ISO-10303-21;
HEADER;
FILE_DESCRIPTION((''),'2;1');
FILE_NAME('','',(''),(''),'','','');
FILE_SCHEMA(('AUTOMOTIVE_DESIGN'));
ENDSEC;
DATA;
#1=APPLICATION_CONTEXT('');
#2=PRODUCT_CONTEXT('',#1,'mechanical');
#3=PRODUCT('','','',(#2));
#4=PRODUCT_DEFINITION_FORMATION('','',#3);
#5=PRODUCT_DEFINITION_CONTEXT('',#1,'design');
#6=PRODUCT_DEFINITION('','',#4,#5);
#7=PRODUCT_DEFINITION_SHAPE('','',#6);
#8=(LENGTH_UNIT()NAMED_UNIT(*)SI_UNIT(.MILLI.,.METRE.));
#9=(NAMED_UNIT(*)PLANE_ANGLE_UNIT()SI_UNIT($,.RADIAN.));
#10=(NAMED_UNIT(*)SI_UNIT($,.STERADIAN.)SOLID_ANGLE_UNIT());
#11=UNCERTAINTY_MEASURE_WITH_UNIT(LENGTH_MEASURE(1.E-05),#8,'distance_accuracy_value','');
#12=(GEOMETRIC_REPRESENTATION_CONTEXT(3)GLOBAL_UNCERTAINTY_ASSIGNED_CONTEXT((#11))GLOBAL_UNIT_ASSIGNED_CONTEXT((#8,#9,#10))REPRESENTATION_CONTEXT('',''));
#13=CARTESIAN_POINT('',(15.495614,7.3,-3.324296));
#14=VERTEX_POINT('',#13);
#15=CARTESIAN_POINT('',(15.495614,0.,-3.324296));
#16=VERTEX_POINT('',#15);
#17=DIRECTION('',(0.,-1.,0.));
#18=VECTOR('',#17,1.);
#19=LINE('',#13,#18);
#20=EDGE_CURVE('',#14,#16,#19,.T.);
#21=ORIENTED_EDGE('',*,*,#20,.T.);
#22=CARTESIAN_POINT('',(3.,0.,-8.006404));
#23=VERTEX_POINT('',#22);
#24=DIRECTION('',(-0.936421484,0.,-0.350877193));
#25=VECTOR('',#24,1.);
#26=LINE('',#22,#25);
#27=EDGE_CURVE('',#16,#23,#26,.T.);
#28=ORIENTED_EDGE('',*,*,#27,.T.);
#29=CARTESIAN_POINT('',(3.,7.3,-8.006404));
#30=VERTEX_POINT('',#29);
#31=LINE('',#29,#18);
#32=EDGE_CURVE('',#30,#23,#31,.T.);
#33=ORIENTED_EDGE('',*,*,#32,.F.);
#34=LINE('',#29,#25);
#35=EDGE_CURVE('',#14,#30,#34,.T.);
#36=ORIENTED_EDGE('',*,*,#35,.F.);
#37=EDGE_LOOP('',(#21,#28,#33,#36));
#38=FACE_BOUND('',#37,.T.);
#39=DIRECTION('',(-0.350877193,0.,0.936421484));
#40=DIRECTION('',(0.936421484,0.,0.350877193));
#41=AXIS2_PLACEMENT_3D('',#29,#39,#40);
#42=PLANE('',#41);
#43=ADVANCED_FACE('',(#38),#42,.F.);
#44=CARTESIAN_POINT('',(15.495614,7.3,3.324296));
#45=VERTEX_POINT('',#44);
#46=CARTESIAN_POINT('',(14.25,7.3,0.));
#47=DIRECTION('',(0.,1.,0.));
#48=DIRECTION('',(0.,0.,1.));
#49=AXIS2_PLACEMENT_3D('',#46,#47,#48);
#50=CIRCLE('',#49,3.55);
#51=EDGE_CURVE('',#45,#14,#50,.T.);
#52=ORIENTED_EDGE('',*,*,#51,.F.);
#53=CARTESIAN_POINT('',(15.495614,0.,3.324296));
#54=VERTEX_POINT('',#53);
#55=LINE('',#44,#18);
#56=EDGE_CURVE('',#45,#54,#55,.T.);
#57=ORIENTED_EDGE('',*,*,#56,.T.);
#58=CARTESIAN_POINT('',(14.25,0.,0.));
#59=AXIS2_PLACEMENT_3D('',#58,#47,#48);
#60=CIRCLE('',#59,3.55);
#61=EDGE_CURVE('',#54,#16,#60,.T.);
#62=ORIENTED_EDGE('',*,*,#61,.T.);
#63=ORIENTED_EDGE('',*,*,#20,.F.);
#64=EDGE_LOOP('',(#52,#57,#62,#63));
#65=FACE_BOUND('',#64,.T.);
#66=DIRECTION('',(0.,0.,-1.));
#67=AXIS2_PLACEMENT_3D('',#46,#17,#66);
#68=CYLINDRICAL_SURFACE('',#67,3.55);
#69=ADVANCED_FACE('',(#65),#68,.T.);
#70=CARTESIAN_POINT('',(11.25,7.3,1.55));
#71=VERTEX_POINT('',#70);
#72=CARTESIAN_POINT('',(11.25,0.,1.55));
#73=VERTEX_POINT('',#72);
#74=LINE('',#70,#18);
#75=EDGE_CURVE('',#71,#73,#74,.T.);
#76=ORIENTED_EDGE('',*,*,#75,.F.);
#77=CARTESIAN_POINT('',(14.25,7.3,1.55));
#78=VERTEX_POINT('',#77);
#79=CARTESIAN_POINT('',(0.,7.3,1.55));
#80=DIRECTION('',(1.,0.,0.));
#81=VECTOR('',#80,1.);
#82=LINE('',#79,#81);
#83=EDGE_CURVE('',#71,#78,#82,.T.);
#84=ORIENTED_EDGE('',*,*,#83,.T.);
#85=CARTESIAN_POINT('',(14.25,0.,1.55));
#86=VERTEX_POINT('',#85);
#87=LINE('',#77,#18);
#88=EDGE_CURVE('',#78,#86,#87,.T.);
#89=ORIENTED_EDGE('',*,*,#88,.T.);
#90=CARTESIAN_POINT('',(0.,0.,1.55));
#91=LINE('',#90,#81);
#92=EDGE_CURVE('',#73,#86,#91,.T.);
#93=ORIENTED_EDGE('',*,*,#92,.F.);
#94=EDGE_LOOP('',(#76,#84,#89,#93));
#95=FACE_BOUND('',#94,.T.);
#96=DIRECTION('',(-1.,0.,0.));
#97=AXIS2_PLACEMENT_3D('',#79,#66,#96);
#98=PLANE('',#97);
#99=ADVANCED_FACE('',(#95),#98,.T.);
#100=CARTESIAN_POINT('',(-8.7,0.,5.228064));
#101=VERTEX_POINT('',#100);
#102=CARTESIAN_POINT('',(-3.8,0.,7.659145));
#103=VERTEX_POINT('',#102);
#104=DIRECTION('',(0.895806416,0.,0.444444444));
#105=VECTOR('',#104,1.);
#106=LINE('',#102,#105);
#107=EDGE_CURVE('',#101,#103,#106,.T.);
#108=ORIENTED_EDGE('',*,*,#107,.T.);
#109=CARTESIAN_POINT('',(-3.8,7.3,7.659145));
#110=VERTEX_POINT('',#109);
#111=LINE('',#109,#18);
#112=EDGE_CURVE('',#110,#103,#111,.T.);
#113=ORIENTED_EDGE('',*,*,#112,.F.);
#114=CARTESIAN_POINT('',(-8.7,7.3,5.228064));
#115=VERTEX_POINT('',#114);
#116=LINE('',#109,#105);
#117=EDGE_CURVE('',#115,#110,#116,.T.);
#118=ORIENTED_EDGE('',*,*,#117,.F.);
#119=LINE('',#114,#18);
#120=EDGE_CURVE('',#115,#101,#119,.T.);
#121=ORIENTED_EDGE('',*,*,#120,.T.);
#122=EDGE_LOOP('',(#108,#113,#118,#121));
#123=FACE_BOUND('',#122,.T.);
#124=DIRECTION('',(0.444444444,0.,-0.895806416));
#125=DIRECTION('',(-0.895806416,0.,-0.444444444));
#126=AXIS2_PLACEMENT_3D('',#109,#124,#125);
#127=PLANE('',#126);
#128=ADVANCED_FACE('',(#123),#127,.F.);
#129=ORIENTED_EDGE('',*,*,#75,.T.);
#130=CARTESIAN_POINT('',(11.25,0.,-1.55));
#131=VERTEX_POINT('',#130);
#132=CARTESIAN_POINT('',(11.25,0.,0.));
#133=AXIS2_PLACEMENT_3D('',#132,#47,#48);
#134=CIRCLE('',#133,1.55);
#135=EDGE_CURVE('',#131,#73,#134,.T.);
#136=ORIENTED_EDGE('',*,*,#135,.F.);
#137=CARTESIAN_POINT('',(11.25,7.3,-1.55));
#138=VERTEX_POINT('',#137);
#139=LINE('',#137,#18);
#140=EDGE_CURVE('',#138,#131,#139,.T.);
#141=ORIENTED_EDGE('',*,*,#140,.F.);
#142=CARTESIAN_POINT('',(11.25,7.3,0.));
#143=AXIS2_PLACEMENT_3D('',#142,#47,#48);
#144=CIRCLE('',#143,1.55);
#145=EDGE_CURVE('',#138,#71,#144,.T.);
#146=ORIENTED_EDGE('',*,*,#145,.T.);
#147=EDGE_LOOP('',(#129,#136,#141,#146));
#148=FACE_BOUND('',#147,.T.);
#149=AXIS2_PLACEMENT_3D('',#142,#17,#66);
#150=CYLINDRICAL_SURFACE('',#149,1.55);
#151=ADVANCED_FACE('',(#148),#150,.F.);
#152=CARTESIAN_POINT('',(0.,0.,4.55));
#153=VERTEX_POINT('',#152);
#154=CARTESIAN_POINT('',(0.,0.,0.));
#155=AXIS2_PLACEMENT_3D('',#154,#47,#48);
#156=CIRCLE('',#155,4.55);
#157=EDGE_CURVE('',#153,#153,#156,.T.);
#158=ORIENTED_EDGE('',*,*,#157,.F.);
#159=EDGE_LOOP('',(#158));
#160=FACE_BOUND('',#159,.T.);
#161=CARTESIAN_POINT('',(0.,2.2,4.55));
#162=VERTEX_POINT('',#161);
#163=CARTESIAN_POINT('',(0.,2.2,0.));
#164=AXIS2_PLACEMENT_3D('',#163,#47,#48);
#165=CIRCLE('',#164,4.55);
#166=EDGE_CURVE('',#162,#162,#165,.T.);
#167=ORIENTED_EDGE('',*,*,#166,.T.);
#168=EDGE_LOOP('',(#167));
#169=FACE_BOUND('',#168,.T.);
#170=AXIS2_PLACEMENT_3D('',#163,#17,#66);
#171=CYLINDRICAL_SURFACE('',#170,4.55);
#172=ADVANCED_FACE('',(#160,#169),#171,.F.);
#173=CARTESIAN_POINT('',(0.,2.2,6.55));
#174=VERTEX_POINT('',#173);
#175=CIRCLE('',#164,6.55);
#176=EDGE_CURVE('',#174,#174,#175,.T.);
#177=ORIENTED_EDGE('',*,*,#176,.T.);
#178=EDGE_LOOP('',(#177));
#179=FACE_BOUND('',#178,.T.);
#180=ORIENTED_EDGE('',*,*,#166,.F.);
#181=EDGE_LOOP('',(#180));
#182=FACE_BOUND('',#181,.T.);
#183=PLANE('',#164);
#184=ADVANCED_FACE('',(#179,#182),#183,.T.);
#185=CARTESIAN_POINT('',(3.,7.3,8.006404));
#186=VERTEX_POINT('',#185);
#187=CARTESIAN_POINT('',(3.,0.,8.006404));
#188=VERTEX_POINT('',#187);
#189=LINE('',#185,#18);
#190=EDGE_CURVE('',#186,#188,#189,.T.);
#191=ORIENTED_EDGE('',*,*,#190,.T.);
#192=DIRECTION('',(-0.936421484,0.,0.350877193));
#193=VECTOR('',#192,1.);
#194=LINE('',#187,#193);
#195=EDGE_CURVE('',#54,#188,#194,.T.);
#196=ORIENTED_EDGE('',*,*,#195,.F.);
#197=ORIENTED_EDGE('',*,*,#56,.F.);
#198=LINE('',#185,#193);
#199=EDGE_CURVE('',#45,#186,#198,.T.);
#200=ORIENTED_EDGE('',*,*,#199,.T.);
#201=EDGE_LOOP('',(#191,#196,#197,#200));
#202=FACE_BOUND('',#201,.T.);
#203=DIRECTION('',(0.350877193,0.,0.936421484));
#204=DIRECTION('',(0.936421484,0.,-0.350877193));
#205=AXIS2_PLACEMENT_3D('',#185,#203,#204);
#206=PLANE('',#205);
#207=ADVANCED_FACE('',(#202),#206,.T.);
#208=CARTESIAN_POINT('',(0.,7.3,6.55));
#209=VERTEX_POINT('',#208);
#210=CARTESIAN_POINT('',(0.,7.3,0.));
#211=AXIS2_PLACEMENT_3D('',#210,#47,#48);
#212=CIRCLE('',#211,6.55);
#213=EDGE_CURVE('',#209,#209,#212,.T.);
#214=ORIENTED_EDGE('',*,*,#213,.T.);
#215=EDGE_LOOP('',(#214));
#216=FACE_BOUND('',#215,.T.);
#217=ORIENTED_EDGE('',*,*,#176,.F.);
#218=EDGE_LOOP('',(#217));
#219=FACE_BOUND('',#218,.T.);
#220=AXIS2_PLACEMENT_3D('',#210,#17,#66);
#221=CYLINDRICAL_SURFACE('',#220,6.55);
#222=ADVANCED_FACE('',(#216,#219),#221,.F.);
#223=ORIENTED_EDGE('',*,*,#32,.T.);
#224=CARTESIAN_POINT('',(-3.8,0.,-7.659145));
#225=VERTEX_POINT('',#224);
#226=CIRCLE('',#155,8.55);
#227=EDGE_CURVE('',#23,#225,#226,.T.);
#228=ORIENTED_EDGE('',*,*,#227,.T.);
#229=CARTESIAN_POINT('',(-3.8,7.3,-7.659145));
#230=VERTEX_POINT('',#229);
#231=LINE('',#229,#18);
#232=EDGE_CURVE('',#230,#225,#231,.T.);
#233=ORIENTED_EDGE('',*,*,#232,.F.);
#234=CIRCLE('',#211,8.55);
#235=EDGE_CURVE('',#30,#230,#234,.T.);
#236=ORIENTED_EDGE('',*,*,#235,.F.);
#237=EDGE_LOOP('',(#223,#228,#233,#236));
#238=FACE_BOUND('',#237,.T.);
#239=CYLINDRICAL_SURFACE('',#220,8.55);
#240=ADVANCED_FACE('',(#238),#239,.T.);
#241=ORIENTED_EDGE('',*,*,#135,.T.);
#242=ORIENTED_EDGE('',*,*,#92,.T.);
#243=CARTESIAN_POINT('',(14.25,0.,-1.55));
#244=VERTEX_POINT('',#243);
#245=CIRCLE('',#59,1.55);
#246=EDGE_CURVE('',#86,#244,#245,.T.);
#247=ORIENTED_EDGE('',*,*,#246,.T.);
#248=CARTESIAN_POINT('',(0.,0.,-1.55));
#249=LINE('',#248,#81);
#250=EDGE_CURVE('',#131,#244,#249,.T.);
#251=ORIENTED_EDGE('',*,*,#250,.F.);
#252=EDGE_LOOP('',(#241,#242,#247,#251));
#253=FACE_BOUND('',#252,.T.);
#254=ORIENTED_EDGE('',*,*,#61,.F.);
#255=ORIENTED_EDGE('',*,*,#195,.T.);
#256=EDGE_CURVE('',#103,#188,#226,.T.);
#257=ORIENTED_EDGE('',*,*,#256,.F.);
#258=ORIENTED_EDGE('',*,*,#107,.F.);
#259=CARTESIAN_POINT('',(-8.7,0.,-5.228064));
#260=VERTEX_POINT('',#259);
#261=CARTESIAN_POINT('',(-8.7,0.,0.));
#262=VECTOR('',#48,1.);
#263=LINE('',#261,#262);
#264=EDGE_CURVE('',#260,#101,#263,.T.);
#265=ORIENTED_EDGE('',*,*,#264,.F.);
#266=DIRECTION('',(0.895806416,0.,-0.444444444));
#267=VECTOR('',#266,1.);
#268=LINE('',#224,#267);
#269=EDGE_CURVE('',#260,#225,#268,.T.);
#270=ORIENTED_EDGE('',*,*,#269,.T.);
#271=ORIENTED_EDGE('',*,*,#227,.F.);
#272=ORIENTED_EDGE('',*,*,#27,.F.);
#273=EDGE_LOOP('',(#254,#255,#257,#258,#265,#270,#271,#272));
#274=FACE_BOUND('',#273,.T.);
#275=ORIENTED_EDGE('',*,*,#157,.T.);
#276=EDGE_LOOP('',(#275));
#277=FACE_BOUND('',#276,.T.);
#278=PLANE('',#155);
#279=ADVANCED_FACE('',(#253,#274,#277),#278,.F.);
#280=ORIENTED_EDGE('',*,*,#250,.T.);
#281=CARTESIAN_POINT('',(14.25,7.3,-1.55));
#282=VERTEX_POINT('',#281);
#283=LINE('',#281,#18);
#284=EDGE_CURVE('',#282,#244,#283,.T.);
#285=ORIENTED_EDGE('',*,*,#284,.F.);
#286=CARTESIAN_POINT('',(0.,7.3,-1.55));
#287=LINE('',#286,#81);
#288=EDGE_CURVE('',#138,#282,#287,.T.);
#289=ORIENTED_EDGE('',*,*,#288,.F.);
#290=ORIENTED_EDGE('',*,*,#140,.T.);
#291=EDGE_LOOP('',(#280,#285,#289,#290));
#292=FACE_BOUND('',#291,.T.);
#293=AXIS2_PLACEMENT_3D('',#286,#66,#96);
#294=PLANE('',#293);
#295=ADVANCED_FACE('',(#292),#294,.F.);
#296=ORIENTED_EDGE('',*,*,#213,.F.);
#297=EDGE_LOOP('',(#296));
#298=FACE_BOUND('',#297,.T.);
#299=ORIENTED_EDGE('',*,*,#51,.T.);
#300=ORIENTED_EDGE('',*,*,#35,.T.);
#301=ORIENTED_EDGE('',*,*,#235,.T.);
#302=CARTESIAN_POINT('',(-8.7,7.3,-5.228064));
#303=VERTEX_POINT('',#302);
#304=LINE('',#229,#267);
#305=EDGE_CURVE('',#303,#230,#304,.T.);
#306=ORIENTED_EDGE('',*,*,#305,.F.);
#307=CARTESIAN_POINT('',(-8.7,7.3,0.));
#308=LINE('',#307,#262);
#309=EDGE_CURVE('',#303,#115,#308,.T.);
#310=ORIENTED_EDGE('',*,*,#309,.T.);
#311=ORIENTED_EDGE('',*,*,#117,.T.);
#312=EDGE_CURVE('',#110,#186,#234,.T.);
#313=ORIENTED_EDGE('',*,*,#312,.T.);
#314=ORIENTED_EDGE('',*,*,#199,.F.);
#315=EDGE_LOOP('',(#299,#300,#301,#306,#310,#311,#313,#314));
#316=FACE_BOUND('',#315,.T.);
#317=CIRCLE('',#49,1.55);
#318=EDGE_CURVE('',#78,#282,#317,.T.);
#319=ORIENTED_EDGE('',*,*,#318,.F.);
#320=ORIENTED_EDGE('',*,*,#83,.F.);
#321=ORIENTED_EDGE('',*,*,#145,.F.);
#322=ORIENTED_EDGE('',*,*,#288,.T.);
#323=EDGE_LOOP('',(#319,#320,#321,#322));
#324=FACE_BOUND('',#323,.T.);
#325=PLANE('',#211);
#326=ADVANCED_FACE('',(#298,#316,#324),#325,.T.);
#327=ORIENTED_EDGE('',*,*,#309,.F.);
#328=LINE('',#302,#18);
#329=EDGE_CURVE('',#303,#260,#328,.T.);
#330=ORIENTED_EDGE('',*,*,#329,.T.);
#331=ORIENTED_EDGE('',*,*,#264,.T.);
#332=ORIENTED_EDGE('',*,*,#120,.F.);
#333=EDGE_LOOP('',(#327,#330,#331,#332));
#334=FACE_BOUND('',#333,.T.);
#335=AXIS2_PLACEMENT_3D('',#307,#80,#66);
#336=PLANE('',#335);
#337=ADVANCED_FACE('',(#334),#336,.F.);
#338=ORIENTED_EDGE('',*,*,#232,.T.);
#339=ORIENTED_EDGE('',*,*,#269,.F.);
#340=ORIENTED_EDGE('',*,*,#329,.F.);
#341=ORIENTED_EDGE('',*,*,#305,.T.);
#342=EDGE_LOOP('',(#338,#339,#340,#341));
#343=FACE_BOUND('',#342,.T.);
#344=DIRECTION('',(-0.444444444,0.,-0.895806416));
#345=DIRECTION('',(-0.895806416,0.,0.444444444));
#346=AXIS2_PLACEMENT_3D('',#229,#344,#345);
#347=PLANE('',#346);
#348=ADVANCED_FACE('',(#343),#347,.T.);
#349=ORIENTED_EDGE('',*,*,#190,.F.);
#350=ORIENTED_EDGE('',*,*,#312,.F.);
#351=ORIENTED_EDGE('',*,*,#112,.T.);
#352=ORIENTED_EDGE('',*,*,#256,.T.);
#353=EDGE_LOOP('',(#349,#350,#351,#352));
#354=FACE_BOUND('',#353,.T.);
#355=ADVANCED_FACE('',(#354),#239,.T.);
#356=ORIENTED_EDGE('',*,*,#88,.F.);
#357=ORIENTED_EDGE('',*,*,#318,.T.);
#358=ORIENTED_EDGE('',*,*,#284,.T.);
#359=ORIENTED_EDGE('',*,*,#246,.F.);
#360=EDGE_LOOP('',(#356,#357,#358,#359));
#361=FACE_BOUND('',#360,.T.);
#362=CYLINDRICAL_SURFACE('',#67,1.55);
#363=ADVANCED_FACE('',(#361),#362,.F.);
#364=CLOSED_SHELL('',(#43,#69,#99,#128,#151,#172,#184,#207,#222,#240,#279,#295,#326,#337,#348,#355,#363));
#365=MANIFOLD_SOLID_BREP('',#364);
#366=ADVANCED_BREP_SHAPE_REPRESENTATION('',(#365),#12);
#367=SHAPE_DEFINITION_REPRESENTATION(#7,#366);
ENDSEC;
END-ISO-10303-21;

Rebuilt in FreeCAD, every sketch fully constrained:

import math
import FreeCAD as App
import Part
import Sketcher
Q = App.Units.Quantity

doc = App.newDocument("Part")
body = doc.addObject("PartDesign::Body", "Body")

# Sketch on XZ plane
sketch1 = body.newObject("Sketcher::SketchObject", "Sketch")
sketch1.AttachmentSupport = (doc.getObject("XZ_Plane"), [""])
sketch1.MapMode = "FlatFace"
sketch1.addGeometry([
    Part.LineSegment(App.Vector(3, 8, 0), App.Vector(15.5, 3.3, 0)),  # 0
    Part.ArcOfCircle(Part.Circle(App.Vector(14.2, 0, 0), App.Vector(0, 0, 1), 3.5), math.radians(-69), math.radians(69)),  # 1
    Part.LineSegment(App.Vector(15.5, -3.3, 0), App.Vector(3, -8, 0)),  # 2
    Part.ArcOfCircle(Part.Circle(App.Vector(0, 0, 0), App.Vector(0, 0, 1), 8.6), math.radians(-116), math.radians(-69)),  # 3
    Part.LineSegment(App.Vector(-3.8, -7.7, 0), App.Vector(-8.7, -5.2, 0)),  # 4
    Part.LineSegment(App.Vector(-8.7, -5.2, 0), App.Vector(-8.7, 5.2, 0)),  # 5
    Part.LineSegment(App.Vector(-8.7, 5.2, 0), App.Vector(-3.8, 7.7, 0)),  # 6
    Part.ArcOfCircle(Part.Circle(App.Vector(0, 0, 0), App.Vector(0, 0, 1), 8.6), math.radians(69), math.radians(116)),  # 7
    Part.Circle(App.Vector(0, 0, 0), App.Vector(0, 0, 1), 6.5),  # 8
    Part.ArcOfCircle(Part.Circle(App.Vector(11.2, 0, 0), App.Vector(0, 0, 1), 1.6), math.radians(90), math.radians(270)),  # 9
    Part.LineSegment(App.Vector(11.2, -1.6, 0), App.Vector(14.2, -1.6, 0)),  # 10
    Part.ArcOfCircle(Part.Circle(App.Vector(14.2, 0, 0), App.Vector(0, 0, 1), 1.6), math.radians(-90), math.radians(90)),  # 11
    Part.LineSegment(App.Vector(14.2, 1.6, 0), App.Vector(11.2, 1.6, 0)),  # 12
], False)
sketch1.addConstraint([
    Sketcher.Constraint("Tangent", 0, 2, 1, 2),
    Sketcher.Constraint("Tangent", 1, 1, 2, 1),
    Sketcher.Constraint("Tangent", 2, 2, 3, 2),
    Sketcher.Constraint("Tangent", 3, 1, 4, 1),
    Sketcher.Constraint("Coincident", 4, 2, 5, 1),
    Sketcher.Constraint("Coincident", 5, 2, 6, 1),
    Sketcher.Constraint("Tangent", 6, 2, 7, 2),
    Sketcher.Constraint("Tangent", 7, 1, 0, 1),
    Sketcher.Constraint("Tangent", 9, 2, 10, 1),
    Sketcher.Constraint("Tangent", 10, 2, 11, 1),
    Sketcher.Constraint("Tangent", 11, 2, 12, 1),
    Sketcher.Constraint("Tangent", 12, 2, 9, 1),
    Sketcher.Constraint("Vertical", 5),
    Sketcher.Constraint("Horizontal", 10),
    Sketcher.Constraint("Horizontal", 12),
    Sketcher.Constraint("Coincident", 3, 3, -1, 1),
    Sketcher.Constraint("Coincident", 7, 3, -1, 1),
    Sketcher.Constraint("Coincident", 8, 3, -1, 1),
    Sketcher.Constraint("Coincident", 11, 3, 1, 3),
    Sketcher.Constraint("Equal", 3, 7),
    Sketcher.Constraint("PointOnObject", 1, 3, -1),
    Sketcher.Constraint("Vertical", 3, 1, 6, 2),
    Sketcher.Constraint("Diameter", 8, Q("13.1 mm")),
    Sketcher.Constraint("DistanceX", 10, 1, 10, 2, Q("3 mm")),
    Sketcher.Constraint("Radius", 1, Q("3.55 mm")),
    Sketcher.Constraint("Radius", 3, Q("8.55 mm")),
    Sketcher.Constraint("Radius", 9, Q("1.55 mm")),
    Sketcher.Constraint("DistanceX", -1, 1, 2, 2, Q("3 mm")),
    Sketcher.Constraint("DistanceX", 3, 1, -1, 1, Q("3.8 mm")),
    Sketcher.Constraint("DistanceX", 4, 2, -1, 1, Q("8.7 mm")),
])
pad1 = body.newObject("PartDesign::Pad", "Pad")
pad1.Profile = sketch1
pad1.Length = 7.3
pad1.Reversed = True

# Sketch on XZ plane
sketch2 = body.newObject("Sketcher::SketchObject", "Sketch001")
sketch2.AttachmentSupport = (doc.getObject("XZ_Plane"), [""])
sketch2.MapMode = "FlatFace"
sketch2.addGeometry([
    Part.ArcOfCircle(Part.Circle(App.Vector(0, 0, 0), App.Vector(0, 0, 1), 6.5), math.radians(69), math.radians(116)),  # 0
    Part.ArcOfCircle(Part.Circle(App.Vector(0, 0, 0), App.Vector(0, 0, 1), 6.5), math.radians(0), math.radians(69)),  # 1
    Part.ArcOfCircle(Part.Circle(App.Vector(0, 0, 0), App.Vector(0, 0, 1), 6.5), math.radians(-23), math.radians(0)),  # 2
    Part.ArcOfCircle(Part.Circle(App.Vector(0, 0, 0), App.Vector(0, 0, 1), 6.5), math.radians(-69), math.radians(-23)),  # 3
    Part.ArcOfCircle(Part.Circle(App.Vector(0, 0, 0), App.Vector(0, 0, 1), 6.5), math.radians(-116), math.radians(-69)),  # 4
    Part.ArcOfCircle(Part.Circle(App.Vector(0, 0, 0), App.Vector(0, 0, 1), 6.6), math.radians(162), math.radians(244)),  # 5
    Part.ArcOfCircle(Part.Circle(App.Vector(0, 0, 0), App.Vector(0, 0, 1), 6.5), math.radians(116), math.radians(162)),  # 6
    Part.ArcOfCircle(Part.Circle(App.Vector(0, 0, 0), App.Vector(0, 0, 1), 4.5), math.radians(0), math.radians(116)),  # 7
    Part.ArcOfCircle(Part.Circle(App.Vector(0, 0, 0), App.Vector(0, 0, 1), 4.5), math.radians(116), math.radians(291)),  # 8
    Part.ArcOfCircle(Part.Circle(App.Vector(0, 0, 0), App.Vector(0, 0, 1), 4.5), math.radians(-69), math.radians(0)),  # 9
], False)
sketch2.addConstraint([
    Sketcher.Constraint("Tangent", 0, 1, 1, 2),
    Sketcher.Constraint("Tangent", 1, 1, 2, 2),
    Sketcher.Constraint("Tangent", 2, 1, 3, 2),
    Sketcher.Constraint("Tangent", 3, 1, 4, 2),
    Sketcher.Constraint("Tangent", 4, 1, 5, 2),
    Sketcher.Constraint("Tangent", 5, 1, 6, 2),
    Sketcher.Constraint("Tangent", 6, 1, 0, 2),
    Sketcher.Constraint("Tangent", 7, 2, 8, 1),
    Sketcher.Constraint("Tangent", 8, 2, 9, 1),
    Sketcher.Constraint("Tangent", 9, 2, 7, 1),
    Sketcher.Constraint("Coincident", 0, 3, -1, 1),
    Sketcher.Constraint("Coincident", 2, 3, -1, 1),
    Sketcher.Constraint("Coincident", 4, 3, -1, 1),
    Sketcher.Constraint("Coincident", 7, 3, -1, 1),
    Sketcher.Constraint("PointOnObject", 1, 1, -1),
    Sketcher.Constraint("PointOnObject", 9, 2, -1),
    Sketcher.Constraint("Vertical", 0, 1, 3, 1),
    Sketcher.Constraint("Vertical", 4, 1, 6, 1),
    Sketcher.Constraint("Radius", 0, Q("6.55 mm")),
    Sketcher.Constraint("Radius", 7, Q("4.55 mm")),
    Sketcher.Constraint("DistanceY", -1, 1, 0, 1, Q("6.133561 mm")),
    Sketcher.Constraint("DistanceX", 4, 1, -1, 1, Q("2.911111 mm")),
    Sketcher.Constraint("DistanceY", -1, 1, 7, 2, Q("4.075919 mm")),
    Sketcher.Constraint("DistanceX", -1, 1, 8, 2, Q("1.596491 mm")),
    Sketcher.Constraint("DistanceX", 3, 1, 2, 1, Q("3.710371 mm")),
    Sketcher.Constraint("DistanceX", 5, 1, 6, 1, Q("3.331871 mm")),
])
pad2 = body.newObject("PartDesign::Pad", "Pad001")
pad2.Profile = sketch2
pad2.Length = 2.2
pad2.Reversed = True

doc.recompute()
